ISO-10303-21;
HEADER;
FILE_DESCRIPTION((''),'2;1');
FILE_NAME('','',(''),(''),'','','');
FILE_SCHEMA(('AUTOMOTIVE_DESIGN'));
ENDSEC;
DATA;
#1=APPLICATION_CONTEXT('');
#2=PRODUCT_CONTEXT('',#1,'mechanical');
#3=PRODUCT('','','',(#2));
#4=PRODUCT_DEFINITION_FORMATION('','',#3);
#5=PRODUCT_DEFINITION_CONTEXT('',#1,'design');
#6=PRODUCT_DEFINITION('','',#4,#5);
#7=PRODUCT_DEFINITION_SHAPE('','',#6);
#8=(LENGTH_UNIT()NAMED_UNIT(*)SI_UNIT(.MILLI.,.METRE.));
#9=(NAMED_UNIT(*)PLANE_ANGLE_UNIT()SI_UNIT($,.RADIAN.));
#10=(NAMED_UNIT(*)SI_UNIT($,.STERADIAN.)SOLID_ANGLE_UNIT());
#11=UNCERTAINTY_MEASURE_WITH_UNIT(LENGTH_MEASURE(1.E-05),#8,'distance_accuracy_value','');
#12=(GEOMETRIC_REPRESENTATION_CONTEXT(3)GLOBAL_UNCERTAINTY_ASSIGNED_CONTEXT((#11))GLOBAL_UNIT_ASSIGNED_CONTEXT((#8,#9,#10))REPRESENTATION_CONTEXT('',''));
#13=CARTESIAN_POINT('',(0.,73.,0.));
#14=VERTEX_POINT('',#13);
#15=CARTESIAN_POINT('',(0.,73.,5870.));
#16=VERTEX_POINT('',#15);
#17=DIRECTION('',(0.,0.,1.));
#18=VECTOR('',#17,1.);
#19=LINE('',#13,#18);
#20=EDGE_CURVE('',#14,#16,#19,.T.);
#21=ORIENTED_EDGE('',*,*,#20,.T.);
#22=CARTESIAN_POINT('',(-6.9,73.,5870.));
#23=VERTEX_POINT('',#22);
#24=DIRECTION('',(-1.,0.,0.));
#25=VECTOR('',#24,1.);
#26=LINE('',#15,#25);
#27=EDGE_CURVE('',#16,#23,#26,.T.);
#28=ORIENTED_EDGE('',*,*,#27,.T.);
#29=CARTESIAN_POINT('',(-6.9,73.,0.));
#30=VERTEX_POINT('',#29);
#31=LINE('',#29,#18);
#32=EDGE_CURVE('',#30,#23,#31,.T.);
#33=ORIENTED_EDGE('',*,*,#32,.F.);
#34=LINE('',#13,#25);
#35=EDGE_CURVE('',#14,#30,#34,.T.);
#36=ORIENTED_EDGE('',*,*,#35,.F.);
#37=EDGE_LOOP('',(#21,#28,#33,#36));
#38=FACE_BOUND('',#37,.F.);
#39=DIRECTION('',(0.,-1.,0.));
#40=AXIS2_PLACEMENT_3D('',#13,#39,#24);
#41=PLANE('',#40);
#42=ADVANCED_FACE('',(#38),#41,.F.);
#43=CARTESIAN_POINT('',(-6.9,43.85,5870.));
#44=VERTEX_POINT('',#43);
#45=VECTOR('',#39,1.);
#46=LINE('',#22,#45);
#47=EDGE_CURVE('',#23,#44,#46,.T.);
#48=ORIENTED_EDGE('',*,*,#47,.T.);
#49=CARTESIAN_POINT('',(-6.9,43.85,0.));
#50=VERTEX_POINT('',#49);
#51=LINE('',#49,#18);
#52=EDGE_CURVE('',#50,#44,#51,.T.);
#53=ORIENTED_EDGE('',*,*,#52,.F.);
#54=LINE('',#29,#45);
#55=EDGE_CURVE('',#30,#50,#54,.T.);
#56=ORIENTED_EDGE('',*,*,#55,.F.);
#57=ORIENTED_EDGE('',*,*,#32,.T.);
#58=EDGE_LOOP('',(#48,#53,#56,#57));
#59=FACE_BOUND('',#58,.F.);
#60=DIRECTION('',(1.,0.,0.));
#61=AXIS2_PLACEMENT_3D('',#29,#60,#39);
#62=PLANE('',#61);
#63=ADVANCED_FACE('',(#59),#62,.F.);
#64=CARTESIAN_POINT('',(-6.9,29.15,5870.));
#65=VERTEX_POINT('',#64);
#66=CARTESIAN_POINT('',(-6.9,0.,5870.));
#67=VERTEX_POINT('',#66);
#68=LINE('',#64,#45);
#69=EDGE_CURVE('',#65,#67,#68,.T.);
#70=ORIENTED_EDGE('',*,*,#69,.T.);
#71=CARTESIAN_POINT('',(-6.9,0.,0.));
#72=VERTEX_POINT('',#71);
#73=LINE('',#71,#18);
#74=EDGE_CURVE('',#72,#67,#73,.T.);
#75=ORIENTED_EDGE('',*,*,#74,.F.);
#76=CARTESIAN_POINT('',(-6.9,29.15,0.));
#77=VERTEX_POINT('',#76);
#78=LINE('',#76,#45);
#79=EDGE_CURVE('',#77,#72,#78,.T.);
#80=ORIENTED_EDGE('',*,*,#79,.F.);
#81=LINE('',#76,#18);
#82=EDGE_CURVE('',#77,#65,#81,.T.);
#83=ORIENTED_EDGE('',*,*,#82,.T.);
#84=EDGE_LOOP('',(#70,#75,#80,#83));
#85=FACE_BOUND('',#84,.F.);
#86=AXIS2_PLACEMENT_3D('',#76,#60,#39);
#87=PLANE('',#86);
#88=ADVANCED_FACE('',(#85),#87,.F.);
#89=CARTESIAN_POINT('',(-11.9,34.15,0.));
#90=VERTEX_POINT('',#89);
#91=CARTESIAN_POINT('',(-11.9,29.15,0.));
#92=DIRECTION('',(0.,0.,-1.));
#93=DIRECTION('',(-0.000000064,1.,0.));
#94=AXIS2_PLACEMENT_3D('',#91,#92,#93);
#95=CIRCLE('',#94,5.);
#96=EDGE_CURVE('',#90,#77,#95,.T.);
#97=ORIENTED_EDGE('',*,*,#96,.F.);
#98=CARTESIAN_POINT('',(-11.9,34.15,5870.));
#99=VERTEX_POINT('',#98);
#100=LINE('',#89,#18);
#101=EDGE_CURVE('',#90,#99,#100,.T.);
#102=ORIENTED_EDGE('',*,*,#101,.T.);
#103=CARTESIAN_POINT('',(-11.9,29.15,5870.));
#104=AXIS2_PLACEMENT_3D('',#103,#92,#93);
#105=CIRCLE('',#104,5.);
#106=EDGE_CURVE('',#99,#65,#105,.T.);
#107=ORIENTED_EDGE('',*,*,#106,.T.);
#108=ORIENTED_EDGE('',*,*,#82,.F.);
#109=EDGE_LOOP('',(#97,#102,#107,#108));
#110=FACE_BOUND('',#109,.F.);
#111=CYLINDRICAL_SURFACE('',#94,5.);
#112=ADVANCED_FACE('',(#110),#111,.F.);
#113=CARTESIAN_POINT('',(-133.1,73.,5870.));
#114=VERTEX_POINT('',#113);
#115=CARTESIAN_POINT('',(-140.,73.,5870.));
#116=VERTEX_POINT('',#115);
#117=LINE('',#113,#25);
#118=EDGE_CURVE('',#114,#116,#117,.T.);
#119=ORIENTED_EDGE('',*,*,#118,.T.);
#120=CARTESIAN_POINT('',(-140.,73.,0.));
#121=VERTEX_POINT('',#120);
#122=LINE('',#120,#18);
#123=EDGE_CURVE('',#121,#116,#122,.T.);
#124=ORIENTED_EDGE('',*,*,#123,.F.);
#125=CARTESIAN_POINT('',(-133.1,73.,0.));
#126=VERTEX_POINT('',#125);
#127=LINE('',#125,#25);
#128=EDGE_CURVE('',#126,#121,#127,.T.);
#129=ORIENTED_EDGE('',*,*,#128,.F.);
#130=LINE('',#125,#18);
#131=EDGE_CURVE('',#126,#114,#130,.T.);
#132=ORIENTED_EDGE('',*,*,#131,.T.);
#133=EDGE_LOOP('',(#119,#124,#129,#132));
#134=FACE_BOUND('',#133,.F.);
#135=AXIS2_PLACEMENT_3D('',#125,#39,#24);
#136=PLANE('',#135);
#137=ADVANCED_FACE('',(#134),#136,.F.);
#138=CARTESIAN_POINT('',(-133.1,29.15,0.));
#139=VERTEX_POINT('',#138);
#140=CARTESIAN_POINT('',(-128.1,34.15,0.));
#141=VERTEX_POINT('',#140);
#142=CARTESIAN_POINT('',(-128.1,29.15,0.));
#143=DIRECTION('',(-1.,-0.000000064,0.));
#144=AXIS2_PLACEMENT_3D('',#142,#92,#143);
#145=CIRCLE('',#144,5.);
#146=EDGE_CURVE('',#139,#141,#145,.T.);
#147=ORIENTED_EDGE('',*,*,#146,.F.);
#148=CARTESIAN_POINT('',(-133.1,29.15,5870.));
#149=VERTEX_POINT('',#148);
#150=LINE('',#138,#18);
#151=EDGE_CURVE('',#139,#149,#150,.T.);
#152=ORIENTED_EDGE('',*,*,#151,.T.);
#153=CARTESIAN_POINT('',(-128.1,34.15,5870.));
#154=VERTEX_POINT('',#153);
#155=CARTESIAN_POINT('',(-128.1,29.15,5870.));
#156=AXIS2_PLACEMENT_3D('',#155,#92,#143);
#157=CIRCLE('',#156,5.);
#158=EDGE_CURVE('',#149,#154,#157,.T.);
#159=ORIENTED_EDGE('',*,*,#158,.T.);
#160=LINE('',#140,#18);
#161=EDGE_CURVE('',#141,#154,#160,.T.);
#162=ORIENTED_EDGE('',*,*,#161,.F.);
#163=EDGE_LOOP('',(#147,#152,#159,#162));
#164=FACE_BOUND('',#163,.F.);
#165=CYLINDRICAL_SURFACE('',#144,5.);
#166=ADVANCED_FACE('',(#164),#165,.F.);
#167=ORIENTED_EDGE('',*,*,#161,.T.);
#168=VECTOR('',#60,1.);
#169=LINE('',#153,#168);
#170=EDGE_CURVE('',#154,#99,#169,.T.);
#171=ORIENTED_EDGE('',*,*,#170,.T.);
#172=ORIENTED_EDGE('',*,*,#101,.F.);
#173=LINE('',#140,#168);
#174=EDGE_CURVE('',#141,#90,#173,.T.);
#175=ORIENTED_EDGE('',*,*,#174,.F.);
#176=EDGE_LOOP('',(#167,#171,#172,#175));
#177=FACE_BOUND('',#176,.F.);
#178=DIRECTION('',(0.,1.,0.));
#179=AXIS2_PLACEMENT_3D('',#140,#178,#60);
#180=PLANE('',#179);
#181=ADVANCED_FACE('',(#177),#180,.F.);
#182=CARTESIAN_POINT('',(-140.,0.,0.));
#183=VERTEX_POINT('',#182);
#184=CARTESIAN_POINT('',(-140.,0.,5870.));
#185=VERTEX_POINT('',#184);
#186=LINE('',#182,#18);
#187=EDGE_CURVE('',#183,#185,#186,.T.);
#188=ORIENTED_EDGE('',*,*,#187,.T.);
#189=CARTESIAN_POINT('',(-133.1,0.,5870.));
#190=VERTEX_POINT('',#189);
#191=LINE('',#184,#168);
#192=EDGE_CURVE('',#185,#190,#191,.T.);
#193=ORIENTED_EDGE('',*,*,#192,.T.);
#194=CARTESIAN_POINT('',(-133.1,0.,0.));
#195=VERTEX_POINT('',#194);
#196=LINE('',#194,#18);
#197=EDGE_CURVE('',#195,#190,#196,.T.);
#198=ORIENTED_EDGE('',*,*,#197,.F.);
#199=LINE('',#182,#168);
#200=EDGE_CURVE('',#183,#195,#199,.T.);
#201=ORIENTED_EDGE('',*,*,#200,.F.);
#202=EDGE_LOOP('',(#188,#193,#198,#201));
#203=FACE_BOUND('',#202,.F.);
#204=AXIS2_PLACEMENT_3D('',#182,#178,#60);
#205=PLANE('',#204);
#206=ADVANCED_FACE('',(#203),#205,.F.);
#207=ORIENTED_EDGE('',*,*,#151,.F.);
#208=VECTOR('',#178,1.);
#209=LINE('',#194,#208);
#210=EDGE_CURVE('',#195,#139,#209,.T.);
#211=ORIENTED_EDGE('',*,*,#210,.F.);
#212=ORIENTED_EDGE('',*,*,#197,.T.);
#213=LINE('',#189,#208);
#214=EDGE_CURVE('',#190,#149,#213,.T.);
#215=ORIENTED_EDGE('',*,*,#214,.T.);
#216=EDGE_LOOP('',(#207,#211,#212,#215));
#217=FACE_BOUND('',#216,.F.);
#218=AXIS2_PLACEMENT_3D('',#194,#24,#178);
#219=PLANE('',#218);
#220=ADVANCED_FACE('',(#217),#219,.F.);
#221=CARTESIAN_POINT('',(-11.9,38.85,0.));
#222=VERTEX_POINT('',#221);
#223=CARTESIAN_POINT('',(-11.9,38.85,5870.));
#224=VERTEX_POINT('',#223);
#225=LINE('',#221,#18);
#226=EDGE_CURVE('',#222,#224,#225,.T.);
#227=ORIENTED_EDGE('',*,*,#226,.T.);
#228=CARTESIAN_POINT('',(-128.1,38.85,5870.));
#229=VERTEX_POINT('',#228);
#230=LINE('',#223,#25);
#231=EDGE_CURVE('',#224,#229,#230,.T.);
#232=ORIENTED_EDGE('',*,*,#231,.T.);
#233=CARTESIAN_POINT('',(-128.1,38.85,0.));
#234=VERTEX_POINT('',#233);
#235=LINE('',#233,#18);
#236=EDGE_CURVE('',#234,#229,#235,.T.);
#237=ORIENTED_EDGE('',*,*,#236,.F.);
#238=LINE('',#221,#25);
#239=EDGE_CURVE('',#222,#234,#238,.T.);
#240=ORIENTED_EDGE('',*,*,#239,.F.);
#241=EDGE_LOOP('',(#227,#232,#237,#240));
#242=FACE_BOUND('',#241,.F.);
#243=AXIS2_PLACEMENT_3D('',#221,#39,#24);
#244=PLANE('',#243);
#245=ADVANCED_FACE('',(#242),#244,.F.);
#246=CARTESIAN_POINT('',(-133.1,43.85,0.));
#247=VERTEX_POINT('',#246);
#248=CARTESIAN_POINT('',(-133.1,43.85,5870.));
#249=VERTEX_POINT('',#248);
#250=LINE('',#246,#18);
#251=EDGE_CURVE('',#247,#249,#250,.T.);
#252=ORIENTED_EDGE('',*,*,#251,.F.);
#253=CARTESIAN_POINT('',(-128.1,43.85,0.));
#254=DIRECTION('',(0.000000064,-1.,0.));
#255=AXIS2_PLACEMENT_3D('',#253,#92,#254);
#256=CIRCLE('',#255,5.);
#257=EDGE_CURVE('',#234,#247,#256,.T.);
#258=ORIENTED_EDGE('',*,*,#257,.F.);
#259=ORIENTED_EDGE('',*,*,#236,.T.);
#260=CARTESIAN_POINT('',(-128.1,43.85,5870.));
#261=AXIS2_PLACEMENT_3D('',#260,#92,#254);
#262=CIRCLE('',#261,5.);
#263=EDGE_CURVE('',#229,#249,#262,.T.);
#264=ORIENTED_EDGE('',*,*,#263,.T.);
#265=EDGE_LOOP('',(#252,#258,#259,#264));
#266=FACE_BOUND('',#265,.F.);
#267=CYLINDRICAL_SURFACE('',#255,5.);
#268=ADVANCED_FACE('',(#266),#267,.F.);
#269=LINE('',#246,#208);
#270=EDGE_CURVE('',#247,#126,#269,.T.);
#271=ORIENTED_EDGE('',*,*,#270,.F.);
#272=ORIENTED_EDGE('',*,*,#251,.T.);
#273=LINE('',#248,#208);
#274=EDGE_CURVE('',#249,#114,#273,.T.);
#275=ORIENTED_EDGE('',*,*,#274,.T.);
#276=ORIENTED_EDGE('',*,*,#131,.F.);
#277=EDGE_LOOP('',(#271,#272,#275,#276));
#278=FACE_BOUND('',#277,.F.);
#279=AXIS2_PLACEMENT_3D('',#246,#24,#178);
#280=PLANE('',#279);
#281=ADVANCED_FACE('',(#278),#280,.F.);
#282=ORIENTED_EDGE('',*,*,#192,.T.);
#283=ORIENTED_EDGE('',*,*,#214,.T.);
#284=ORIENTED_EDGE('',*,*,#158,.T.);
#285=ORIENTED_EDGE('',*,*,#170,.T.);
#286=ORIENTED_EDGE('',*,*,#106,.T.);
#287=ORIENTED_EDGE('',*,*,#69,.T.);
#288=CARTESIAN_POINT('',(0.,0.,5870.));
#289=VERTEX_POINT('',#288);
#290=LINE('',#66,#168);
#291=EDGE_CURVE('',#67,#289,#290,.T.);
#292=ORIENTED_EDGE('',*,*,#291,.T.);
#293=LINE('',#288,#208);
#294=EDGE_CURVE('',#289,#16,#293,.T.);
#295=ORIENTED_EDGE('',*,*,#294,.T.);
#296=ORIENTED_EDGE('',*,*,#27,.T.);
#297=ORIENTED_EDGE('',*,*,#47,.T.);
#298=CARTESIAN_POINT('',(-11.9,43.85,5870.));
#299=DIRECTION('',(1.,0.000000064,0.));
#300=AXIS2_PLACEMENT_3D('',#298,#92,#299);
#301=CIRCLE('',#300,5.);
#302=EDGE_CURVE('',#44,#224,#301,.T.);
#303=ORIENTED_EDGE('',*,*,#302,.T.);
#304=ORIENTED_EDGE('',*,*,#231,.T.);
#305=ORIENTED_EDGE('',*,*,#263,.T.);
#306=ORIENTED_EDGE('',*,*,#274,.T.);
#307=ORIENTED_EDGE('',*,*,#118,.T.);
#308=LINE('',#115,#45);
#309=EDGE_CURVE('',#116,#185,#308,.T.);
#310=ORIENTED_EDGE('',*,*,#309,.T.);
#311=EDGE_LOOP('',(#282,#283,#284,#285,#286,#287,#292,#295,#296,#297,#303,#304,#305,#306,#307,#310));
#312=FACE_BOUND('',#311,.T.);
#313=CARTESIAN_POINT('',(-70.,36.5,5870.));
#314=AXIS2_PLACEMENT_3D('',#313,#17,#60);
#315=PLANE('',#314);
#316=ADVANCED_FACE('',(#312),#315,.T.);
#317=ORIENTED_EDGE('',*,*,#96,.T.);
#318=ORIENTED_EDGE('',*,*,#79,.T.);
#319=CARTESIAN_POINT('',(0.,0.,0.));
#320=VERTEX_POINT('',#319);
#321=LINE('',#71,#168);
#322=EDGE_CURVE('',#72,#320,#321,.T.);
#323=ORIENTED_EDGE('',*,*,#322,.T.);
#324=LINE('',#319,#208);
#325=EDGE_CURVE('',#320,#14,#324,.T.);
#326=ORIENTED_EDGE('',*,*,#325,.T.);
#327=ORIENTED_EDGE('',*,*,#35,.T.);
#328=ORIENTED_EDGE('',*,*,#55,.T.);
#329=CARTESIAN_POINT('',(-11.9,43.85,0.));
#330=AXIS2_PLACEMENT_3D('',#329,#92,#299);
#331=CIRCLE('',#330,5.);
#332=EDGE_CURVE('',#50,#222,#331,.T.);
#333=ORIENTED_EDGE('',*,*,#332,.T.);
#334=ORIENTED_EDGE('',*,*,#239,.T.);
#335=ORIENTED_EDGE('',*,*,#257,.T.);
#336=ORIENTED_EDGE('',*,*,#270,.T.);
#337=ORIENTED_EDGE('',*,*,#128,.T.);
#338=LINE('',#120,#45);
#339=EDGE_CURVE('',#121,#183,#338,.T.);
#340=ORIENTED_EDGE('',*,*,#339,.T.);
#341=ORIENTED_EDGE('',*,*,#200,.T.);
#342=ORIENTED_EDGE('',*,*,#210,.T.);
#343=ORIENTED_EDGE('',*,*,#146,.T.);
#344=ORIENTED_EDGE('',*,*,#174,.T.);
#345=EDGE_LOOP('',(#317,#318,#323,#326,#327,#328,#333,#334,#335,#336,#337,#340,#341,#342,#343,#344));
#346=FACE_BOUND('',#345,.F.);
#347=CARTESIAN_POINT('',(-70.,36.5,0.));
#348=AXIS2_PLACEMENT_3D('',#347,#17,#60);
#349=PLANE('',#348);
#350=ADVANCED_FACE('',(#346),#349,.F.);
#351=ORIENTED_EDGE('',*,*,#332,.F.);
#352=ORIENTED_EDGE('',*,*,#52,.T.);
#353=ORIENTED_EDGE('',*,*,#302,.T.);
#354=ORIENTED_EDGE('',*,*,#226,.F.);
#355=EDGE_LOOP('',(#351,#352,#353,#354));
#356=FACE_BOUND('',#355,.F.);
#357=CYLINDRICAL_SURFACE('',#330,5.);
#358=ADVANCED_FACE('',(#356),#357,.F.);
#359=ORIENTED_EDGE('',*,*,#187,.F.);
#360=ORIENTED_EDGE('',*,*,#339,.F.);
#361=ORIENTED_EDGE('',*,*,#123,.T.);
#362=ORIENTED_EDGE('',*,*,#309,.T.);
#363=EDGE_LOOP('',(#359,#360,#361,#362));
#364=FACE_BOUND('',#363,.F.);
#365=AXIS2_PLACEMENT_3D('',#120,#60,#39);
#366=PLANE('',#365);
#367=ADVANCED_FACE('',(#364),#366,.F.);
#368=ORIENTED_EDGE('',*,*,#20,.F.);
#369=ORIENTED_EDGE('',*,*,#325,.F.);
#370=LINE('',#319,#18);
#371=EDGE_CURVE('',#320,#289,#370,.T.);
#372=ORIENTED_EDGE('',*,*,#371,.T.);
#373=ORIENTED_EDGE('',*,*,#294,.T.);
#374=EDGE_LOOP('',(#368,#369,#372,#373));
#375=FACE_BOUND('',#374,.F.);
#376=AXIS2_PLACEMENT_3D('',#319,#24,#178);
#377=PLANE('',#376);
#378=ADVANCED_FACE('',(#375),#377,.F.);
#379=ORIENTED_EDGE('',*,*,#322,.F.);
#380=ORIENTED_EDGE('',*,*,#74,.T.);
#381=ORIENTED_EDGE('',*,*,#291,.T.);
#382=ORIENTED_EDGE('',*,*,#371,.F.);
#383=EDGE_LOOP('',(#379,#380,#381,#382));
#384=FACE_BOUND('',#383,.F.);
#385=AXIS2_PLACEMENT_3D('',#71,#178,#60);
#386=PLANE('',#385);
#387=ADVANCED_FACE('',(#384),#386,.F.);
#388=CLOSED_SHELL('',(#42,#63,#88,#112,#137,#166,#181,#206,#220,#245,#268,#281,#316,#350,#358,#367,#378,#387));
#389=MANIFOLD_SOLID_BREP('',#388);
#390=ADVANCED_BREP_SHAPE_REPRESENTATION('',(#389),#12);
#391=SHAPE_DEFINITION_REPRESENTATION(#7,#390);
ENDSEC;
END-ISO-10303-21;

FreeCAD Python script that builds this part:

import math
import FreeCAD as App
import Part
import Sketcher

V = App.Vector

doc = App.newDocument("Part")
body = doc.addObject("PartDesign::Body", "Body")

# Sketch on XY plane
sketch1 = body.newObject("Sketcher::SketchObject", "Sketch")
sketch1.AttachmentSupport = (doc.getObject("XY_Plane"), [""])
sketch1.MapMode = "FlatFace"
sketch1.addGeometry([
    Part.LineSegment(V(-140, 73, 0), V(-140, 0, 0)),  # 0
    Part.LineSegment(V(-140, 0, 0), V(-133.1, 0, 0)),  # 1
    Part.LineSegment(V(-133.1, 0, 0), V(-133.1, 29.1, 0)),  # 2
    Part.ArcOfCircle(Part.Circle(V(-128.1, 29.2, 0), V(0, 0, 1), 5), math.radians(90), math.radians(180)),  # 3
    Part.LineSegment(V(-128.1, 34.1, 0), V(-11.9, 34.1, 0)),  # 4
    Part.ArcOfCircle(Part.Circle(V(-11.9, 29.2, 0), V(0, 0, 1), 5), math.radians(0), math.radians(90)),  # 5
    Part.LineSegment(V(-6.9, 29.1, 0), V(-6.9, 0, 0)),  # 6
    Part.LineSegment(V(-6.9, 0, 0), V(0, 0, 0)),  # 7
    Part.LineSegment(V(0, 0, 0), V(0, 73, 0)),  # 8
    Part.LineSegment(V(0, 73, 0), V(-6.9, 73, 0)),  # 9
    Part.LineSegment(V(-6.9, 73, 0), V(-6.9, 43.9, 0)),  # 10
    Part.ArcOfCircle(Part.Circle(V(-11.9, 43.8, 0), V(0, 0, 1), 5), math.radians(-90), math.radians(0)),  # 11
    Part.LineSegment(V(-11.9, 38.9, 0), V(-128.1, 38.9, 0)),  # 12
    Part.ArcOfCircle(Part.Circle(V(-128.1, 43.8, 0), V(0, 0, 1), 5), math.radians(180), math.radians(270)),  # 13
    Part.LineSegment(V(-133.1, 43.9, 0), V(-133.1, 73, 0)),  # 14
    Part.LineSegment(V(-133.1, 73, 0), V(-140, 73, 0)),  # 15
], False)
sketch1.addConstraint([
    Sketcher.Constraint("Coincident", 0, 2, 1, 1),
    Sketcher.Constraint("Coincident", 1, 2, 2, 1),
    Sketcher.Constraint("Tangent", 2, 2, 3, 2),
    Sketcher.Constraint("Tangent", 3, 1, 4, 1),
    Sketcher.Constraint("Tangent", 4, 2, 5, 2),
    Sketcher.Constraint("Tangent", 5, 1, 6, 1),
    Sketcher.Constraint("Coincident", 6, 2, 7, 1),
    Sketcher.Constraint("Coincident", 7, 2, 8, 1),
    Sketcher.Constraint("Coincident", 8, 2, 9, 1),
    Sketcher.Constraint("Coincident", 9, 2, 10, 1),
    Sketcher.Constraint("Tangent", 10, 2, 11, 2),
    Sketcher.Constraint("Tangent", 11, 1, 12, 1),
    Sketcher.Constraint("Tangent", 12, 2, 13, 2),
    Sketcher.Constraint("Tangent", 13, 1, 14, 1),
    Sketcher.Constraint("Coincident", 14, 2, 15, 1),
    Sketcher.Constraint("Coincident", 15, 2, 0, 1),
    Sketcher.Constraint("Vertical", 0),
    Sketcher.Constraint("Horizontal", 1),
    Sketcher.Constraint("Vertical", 2),
    Sketcher.Constraint("Horizontal", 4),
    Sketcher.Constraint("Vertical", 6),
    Sketcher.Constraint("Horizontal", 7),
    Sketcher.Constraint("Vertical", 8),
    Sketcher.Constraint("Horizontal", 9),
    Sketcher.Constraint("Vertical", 10),
    Sketcher.Constraint("Horizontal", 12),
    Sketcher.Constraint("Vertical", 14),
    Sketcher.Constraint("Horizontal", 15),
    Sketcher.Constraint("Coincident", 7, 2, -1, 1),
    Sketcher.Constraint("Equal", 3, 5),
    Sketcher.Constraint("Equal", 5, 11),
    Sketcher.Constraint("Equal", 11, 13),
    Sketcher.Constraint("PointOnObject", 0, 2, -1),
    Sketcher.Constraint("Horizontal", 9, 2, 14, 2),
    Sketcher.Constraint("Vertical", 5, 3, 11, 3),
    Sketcher.Constraint("Vertical", 3, 3, 13, 3),
    Sketcher.Constraint("Equal", 1, 7),
    Sketcher.Constraint("Equal", 6, 10),
    Sketcher.Constraint("Radius", 3, 5.0),
    Sketcher.Constraint("DistanceY", 0, 2, 0, 1, 73.0),
    Sketcher.Constraint("DistanceX", 1, 1, 1, 2, 6.9),
    Sketcher.Constraint("DistanceX", 4, 1, 4, 2, 116.2),
    Sketcher.Constraint("DistanceY", 2, 1, 2, 2, 29.15),
])
pad1 = body.newObject("PartDesign::Pad", "Pad")
pad1.Profile = sketch1
pad1.Length = 5870

doc.recompute()
